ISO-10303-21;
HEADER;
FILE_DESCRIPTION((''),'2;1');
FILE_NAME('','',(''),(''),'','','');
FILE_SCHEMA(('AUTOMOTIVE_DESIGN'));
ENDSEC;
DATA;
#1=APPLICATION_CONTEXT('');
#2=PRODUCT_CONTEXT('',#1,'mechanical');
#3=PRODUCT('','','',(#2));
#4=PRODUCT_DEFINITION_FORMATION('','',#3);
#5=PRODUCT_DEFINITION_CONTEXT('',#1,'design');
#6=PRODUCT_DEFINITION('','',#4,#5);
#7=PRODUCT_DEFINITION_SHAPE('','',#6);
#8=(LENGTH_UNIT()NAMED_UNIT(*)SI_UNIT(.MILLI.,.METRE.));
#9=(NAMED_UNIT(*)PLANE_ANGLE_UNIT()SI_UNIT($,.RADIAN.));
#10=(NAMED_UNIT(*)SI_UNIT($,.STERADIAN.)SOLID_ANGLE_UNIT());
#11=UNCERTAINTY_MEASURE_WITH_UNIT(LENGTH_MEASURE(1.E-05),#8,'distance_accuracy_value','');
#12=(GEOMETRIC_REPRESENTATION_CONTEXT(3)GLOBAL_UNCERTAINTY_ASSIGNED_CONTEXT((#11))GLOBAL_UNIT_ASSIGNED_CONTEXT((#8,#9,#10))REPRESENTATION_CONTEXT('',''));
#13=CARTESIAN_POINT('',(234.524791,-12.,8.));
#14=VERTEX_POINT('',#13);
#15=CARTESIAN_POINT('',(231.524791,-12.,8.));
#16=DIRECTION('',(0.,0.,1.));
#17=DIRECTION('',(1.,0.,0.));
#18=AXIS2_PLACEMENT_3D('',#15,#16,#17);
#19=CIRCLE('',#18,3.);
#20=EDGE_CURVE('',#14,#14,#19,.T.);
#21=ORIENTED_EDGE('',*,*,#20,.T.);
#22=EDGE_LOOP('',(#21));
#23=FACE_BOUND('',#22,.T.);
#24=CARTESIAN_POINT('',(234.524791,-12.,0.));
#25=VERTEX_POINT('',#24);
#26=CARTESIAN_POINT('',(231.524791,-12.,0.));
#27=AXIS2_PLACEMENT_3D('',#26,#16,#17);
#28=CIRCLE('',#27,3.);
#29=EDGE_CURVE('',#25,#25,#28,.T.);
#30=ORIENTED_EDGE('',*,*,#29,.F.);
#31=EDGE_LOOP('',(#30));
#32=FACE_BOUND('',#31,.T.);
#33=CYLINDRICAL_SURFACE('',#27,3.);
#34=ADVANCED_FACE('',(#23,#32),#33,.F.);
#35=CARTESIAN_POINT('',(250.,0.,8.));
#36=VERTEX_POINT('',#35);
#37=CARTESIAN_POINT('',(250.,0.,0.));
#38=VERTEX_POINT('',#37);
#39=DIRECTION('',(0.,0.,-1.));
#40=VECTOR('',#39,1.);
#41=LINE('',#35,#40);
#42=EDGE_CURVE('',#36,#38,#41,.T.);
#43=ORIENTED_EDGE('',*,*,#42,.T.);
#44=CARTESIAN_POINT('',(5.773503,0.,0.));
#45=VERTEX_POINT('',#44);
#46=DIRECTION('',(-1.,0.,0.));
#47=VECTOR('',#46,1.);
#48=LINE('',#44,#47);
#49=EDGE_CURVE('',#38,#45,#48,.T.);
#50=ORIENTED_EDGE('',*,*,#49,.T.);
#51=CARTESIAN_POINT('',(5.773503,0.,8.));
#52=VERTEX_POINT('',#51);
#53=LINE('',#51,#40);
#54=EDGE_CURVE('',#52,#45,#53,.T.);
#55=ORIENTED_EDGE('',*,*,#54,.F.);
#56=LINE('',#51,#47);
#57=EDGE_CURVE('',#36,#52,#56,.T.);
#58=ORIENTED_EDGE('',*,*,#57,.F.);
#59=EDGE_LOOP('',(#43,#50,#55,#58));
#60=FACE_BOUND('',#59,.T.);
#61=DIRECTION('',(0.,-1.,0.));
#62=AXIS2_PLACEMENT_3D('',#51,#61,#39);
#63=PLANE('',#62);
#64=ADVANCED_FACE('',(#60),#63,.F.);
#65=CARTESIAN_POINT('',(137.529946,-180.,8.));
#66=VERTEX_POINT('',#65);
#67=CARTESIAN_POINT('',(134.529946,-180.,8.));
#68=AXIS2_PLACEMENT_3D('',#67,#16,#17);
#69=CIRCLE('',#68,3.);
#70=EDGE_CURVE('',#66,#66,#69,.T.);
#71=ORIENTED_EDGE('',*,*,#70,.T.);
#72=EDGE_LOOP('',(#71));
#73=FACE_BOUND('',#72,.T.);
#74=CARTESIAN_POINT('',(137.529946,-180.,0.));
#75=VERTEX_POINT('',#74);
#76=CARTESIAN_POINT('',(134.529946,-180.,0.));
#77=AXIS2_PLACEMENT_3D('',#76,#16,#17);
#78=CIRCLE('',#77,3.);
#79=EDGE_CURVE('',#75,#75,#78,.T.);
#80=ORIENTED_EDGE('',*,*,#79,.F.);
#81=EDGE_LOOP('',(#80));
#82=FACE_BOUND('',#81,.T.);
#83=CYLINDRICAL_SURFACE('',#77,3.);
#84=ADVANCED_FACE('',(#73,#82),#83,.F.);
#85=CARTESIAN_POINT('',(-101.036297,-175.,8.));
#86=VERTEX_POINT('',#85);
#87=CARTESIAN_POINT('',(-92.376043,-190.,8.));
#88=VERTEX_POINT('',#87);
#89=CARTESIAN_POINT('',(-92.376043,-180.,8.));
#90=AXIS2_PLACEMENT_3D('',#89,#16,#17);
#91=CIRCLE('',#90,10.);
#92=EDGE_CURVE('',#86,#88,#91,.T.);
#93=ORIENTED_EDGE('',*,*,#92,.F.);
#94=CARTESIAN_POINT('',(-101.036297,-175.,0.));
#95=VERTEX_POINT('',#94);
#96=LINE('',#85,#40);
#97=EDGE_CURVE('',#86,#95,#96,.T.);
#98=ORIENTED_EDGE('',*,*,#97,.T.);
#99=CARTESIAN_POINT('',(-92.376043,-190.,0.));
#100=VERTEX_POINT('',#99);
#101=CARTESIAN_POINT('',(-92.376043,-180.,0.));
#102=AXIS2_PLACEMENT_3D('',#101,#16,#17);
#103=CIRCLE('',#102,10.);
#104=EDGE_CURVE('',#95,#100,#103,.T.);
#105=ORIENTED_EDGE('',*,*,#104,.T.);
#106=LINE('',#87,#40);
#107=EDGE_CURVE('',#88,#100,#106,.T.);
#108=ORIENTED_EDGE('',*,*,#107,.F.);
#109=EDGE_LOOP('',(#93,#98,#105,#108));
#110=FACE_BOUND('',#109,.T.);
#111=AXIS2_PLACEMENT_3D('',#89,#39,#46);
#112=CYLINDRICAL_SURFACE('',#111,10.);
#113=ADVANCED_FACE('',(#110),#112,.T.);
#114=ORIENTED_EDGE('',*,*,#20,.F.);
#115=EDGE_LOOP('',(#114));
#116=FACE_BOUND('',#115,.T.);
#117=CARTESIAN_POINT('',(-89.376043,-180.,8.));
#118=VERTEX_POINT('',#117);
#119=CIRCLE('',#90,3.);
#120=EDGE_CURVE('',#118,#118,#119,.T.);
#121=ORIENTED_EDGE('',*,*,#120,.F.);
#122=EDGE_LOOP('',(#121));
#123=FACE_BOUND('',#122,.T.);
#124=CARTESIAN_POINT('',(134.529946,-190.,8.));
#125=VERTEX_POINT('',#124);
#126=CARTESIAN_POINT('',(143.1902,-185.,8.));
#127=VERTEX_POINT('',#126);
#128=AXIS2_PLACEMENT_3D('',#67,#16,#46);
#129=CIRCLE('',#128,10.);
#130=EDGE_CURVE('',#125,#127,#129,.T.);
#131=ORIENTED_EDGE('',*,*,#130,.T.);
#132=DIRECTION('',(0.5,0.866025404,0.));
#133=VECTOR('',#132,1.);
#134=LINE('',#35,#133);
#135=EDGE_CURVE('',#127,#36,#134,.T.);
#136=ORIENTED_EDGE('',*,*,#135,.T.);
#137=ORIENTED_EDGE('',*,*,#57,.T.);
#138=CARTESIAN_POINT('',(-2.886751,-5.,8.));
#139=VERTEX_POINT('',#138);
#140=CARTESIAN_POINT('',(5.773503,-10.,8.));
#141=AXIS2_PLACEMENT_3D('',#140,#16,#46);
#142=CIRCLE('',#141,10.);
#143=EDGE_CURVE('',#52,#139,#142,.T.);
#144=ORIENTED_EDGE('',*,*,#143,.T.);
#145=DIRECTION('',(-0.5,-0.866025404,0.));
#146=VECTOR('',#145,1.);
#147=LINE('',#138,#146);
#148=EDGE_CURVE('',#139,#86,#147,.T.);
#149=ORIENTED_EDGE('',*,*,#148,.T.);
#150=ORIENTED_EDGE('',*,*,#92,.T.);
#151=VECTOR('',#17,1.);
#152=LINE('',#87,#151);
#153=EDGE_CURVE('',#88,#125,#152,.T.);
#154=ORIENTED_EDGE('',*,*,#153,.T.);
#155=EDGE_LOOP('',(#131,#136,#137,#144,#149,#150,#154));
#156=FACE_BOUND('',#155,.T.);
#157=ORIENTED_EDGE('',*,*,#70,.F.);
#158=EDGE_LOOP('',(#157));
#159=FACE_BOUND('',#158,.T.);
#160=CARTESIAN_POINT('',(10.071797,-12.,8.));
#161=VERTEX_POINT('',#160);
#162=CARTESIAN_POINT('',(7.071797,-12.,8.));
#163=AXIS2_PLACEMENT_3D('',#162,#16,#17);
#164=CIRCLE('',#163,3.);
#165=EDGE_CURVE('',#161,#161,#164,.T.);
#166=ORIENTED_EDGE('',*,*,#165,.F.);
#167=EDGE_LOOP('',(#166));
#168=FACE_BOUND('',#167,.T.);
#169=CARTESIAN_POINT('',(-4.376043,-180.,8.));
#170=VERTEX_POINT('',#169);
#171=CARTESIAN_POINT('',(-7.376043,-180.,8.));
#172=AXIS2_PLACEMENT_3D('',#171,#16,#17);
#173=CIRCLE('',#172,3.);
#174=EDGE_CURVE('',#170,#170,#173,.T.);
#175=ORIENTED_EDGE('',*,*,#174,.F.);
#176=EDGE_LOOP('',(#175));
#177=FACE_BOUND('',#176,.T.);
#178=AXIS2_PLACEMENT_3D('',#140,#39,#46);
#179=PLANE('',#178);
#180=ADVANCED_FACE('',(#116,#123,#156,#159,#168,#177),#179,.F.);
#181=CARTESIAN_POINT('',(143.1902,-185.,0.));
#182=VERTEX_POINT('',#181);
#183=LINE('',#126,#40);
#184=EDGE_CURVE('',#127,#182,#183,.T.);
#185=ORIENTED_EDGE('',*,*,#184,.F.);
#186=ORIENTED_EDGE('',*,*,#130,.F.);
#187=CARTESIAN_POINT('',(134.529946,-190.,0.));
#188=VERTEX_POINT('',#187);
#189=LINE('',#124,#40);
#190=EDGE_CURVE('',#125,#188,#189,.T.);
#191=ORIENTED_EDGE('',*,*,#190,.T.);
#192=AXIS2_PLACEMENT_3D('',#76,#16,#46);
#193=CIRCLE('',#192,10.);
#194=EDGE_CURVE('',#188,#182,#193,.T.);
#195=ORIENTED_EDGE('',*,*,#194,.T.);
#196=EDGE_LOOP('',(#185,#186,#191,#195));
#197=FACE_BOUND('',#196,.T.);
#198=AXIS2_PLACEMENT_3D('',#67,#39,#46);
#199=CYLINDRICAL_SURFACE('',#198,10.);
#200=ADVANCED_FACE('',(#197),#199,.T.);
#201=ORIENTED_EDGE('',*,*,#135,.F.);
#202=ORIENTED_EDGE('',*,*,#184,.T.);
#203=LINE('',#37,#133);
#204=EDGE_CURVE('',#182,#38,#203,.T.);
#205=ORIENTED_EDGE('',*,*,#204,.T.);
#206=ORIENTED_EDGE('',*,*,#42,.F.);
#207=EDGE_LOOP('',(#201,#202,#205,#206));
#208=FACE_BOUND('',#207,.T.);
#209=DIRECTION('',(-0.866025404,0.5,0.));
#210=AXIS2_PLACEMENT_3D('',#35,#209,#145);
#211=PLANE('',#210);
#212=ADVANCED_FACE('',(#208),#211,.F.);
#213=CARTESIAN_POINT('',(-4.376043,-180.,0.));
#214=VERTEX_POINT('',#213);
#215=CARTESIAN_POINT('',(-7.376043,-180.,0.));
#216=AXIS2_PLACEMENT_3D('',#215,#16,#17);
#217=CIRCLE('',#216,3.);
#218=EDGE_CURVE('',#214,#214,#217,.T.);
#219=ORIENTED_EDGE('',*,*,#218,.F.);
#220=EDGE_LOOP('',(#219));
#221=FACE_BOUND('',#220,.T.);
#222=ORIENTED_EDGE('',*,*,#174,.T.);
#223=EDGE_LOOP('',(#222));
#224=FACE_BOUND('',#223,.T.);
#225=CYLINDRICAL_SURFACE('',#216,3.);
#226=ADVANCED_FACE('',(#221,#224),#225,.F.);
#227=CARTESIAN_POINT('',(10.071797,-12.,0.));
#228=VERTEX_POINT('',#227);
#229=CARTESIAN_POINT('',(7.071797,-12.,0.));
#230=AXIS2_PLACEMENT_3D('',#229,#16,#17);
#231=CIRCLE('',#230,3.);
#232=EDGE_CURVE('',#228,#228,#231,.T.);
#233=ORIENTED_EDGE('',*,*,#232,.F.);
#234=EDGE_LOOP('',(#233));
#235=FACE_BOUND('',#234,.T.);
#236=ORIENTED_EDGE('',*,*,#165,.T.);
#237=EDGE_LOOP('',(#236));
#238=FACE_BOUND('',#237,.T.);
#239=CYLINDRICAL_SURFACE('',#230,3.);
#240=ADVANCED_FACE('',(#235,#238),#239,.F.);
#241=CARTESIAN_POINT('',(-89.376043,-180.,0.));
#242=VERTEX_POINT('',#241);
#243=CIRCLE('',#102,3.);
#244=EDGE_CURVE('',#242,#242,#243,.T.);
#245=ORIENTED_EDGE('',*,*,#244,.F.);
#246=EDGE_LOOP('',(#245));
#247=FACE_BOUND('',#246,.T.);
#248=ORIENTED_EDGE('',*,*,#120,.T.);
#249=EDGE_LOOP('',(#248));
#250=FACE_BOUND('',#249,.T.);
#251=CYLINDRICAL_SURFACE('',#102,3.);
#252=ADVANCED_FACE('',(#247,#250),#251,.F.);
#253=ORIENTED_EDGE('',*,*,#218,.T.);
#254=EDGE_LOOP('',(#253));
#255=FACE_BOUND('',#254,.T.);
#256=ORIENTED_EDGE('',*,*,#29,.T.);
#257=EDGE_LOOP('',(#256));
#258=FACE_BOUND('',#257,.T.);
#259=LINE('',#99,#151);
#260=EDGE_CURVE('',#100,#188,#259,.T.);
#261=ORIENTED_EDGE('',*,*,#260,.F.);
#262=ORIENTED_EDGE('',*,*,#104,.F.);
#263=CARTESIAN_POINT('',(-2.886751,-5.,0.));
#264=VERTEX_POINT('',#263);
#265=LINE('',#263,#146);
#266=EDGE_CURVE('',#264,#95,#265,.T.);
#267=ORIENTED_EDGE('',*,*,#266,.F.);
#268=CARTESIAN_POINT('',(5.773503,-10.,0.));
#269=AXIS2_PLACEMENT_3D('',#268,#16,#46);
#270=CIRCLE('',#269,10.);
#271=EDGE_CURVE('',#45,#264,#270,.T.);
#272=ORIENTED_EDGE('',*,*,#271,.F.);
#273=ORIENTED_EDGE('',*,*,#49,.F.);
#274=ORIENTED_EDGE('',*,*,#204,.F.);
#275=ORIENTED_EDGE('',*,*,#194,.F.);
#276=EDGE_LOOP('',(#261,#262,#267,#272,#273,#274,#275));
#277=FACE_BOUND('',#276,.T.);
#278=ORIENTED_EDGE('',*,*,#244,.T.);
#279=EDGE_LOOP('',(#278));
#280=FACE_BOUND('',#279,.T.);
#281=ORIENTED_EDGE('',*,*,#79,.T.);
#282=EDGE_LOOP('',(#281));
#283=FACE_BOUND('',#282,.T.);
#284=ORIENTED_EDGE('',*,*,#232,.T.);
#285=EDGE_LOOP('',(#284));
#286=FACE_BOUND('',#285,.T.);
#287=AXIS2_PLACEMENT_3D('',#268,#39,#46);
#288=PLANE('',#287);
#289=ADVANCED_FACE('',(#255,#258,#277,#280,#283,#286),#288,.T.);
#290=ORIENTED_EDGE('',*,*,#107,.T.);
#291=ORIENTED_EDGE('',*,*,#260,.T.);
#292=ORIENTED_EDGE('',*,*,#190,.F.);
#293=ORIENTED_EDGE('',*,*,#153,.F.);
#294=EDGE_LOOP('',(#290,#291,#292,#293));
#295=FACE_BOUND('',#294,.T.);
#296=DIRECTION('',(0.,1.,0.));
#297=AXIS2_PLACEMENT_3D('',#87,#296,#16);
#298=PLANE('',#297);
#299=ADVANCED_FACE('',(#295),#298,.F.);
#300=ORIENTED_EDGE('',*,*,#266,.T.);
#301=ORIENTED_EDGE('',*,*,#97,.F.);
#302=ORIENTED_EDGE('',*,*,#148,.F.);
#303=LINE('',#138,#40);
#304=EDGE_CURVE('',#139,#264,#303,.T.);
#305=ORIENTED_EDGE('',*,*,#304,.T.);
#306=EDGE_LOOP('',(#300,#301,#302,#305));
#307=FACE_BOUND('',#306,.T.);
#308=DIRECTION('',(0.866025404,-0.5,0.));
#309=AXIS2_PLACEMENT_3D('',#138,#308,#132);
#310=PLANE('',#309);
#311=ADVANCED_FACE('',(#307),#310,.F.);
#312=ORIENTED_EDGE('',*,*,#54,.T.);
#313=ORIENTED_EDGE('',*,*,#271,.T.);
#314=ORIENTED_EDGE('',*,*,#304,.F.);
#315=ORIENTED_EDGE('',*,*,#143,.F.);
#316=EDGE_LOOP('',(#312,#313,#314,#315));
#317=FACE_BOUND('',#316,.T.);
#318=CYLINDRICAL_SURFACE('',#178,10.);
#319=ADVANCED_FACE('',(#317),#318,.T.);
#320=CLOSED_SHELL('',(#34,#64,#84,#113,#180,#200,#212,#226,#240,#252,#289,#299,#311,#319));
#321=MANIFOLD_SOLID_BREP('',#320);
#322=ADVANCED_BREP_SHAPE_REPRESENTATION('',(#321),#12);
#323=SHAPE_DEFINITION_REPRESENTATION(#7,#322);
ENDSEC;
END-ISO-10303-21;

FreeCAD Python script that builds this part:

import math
import FreeCAD as App
import Part
import Sketcher

V = App.Vector
Q = App.Units.Quantity

doc = App.newDocument("Part")
body = doc.addObject("PartDesign::Body", "Body")

# Sketch on XY plane
sketch1 = body.newObject("Sketcher::SketchObject", "Sketch")
sketch1.AttachmentSupport = (doc.getObject("XY_Plane"), [""])
sketch1.MapMode = "FlatFace"
sketch1.addGeometry([
    Part.LineSegment(V(250, 0, 0), V(6, 0, 0)),  # 0
    Part.ArcOfCircle(Part.Circle(V(6, -10, 0), V(0, 0, 1), 10), math.radians(90), math.radians(150)),  # 1
    Part.LineSegment(V(-3, -5, 0), V(-101, -175, 0)),  # 2
    Part.ArcOfCircle(Part.Circle(V(-92, -180, 0), V(0, 0, 1), 10), math.radians(150), math.radians(270)),  # 3
    Part.LineSegment(V(-92, -190, 0), V(135, -190, 0)),  # 4
    Part.ArcOfCircle(Part.Circle(V(135, -180, 0), V(0, 0, 1), 10), math.radians(-90), math.radians(-30)),  # 5
    Part.LineSegment(V(143, -185, 0), V(250, 0, 0)),  # 6
], False)
sketch1.addConstraint([
    Sketcher.Constraint("Tangent", 0, 2, 1, 1),
    Sketcher.Constraint("Tangent", 1, 2, 2, 1),
    Sketcher.Constraint("Tangent", 2, 2, 3, 1),
    Sketcher.Constraint("Tangent", 3, 2, 4, 1),
    Sketcher.Constraint("Tangent", 4, 2, 5, 1),
    Sketcher.Constraint("Tangent", 5, 2, 6, 1),
    Sketcher.Constraint("Coincident", 6, 2, 0, 1),
    Sketcher.Constraint("Horizontal", 0),
    Sketcher.Constraint("Horizontal", 4),
    Sketcher.Constraint("Equal", 1, 3),
    Sketcher.Constraint("Equal", 3, 5),
    Sketcher.Constraint("PointOnObject", 0, 2, -1),
    Sketcher.Constraint("Parallel", 2, 6),
    Sketcher.Constraint("Radius", 1, 10.0),
    Sketcher.Constraint("Angle", 2, Q("-120 deg")),
    Sketcher.Constraint("DistanceY", 3, 3, -1, 1, 180.0),
    Sketcher.Constraint("DistanceX", -1, 1, 6, 2, 250.0),
    Sketcher.Constraint("DistanceX", 4, 1, 4, 2, 226.905989),
])
pad1 = body.newObject("PartDesign::Pad", "Pad")
pad1.Profile = sketch1
pad1.Length = 8

# Sketch on XY plane
sketch2 = body.newObject("Sketcher::SketchObject", "Sketch001")
sketch2.AttachmentSupport = (doc.getObject("XY_Plane"), [""])
sketch2.MapMode = "FlatFace"
sketch2.AttachmentOffset = App.Placement(V(0, 0, 8), App.Rotation())
sketch2.addGeometry([
    Part.Circle(V(-92.4, -180, 0), V(0, 0, 1), 3),  # 0
    Part.Circle(V(-7.4, -180, 0), V(0, 0, 1), 3),  # 1
    Part.Circle(V(7.1, -12, 0), V(0, 0, 1), 3),  # 2
    Part.Circle(V(231.5, -12, 0), V(0, 0, 1), 3),  # 3
    Part.Circle(V(134.5, -180, 0), V(0, 0, 1), 3),  # 4
], False)
sketch2.addConstraint([
    Sketcher.Constraint("Equal", 0, 1),
    Sketcher.Constraint("Equal", 1, 2),
    Sketcher.Constraint("Equal", 2, 3),
    Sketcher.Constraint("Equal", 3, 4),
    Sketcher.Constraint("Horizontal", 0, 3, 1, 3),
    Sketcher.Constraint("Horizontal", 2, 3, 3, 3),
    Sketcher.Constraint("Horizontal", 1, 3, 4, 3),
    Sketcher.Constraint("Diameter", 0, 6.0),
    Sketcher.Constraint("DistanceY", 0, 3, -1, 1, 180.0),
    Sketcher.Constraint("DistanceY", 2, 3, -1, 1, 12.0),
    Sketcher.Constraint("DistanceX", 0, 3, 1, 3, 85.0),
    Sketcher.Constraint("DistanceX", -1, 1, 3, 3, 231.524791),
    Sketcher.Constraint("DistanceX", 1, 3, 2, 3, 14.44784),
    Sketcher.Constraint("DistanceX", 1, 3, 4, 3, 141.905989),
    Sketcher.Constraint("DistanceX", 0, 3, -1, 1, 92.376043),
])
pocket1 = body.newObject("PartDesign::Pocket", "Pocket")
pocket1.Profile = sketch2
pocket1.Type = "ThroughAll"

doc.recompute()
